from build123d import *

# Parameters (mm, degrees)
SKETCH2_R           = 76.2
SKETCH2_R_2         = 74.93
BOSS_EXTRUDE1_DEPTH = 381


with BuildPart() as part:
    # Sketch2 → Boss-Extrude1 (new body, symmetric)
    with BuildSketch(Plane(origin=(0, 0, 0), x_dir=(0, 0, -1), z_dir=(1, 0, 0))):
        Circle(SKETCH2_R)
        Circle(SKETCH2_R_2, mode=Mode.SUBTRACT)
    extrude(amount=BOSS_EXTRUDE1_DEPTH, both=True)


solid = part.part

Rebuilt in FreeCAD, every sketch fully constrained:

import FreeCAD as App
import Part
import Sketcher
Q = App.Units.Quantity

doc = App.newDocument("Part")
body = doc.addObject("PartDesign::Body", "Body")

# Sketch on YZ plane
sketch1 = body.newObject("Sketcher::SketchObject", "Sketch")
sketch1.AttachmentSupport = (doc.getObject("YZ_Plane"), [""])
sketch1.MapMode = "FlatFace"
sketch1.addGeometry(Part.Circle(App.Vector(0, 0, 0), App.Vector(0, 0, 1), 76), False)
sketch1.addGeometry(Part.Circle(App.Vector(0, 0, 0), App.Vector(0, 0, 1), 75), False)
sketch1.addConstraint(Sketcher.Constraint("Coincident", 0, 3, -1, 1))
sketch1.addConstraint(Sketcher.Constraint("Coincident", 1, 3, -1, 1))
sketch1.addConstraint(Sketcher.Constraint("Diameter", 0, Q("6 in")))
sketch1.addConstraint(Sketcher.Constraint("Diameter", 1, Q("5.9 in")))
pad1 = body.newObject("PartDesign::Pad", "Pad")
pad1.Profile = sketch1
pad1.Length = Q("30 in")
pad1.Midplane = True

doc.recompute()
